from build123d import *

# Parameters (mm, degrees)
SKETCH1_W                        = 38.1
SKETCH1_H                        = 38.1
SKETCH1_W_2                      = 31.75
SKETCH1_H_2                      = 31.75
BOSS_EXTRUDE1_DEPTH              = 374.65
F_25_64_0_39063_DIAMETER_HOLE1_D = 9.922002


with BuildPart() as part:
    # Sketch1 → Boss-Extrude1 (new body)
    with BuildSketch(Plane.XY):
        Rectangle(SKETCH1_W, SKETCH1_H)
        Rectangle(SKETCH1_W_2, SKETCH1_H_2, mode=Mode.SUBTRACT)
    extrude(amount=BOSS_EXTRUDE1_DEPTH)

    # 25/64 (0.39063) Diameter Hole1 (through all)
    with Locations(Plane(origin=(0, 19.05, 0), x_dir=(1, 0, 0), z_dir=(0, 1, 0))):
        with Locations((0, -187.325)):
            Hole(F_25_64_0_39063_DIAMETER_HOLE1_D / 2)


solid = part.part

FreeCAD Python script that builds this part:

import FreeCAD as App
import Part
import Sketcher

V = App.Vector
Q = App.Units.Quantity


def add_polygon(sketch, points):
    """Adds a closed chain of lines whose ends are joined by coincident constraints."""
    first, n = sketch.GeometryCount, len(points)
    for a, b in zip(points, points[1:] + points[:1]):
        sketch.addGeometry(Part.LineSegment(App.Vector(*a, 0), App.Vector(*b, 0)), False)
    for i in range(n):
        sketch.addConstraint(Sketcher.Constraint("Coincident", first + i, 2, first + (i + 1) % n, 1))

doc = App.newDocument("Part")
body = doc.addObject("PartDesign::Body", "Body")

# Sketch on XY plane
sketch1 = body.newObject("Sketcher::SketchObject", "Sketch")
sketch1.AttachmentSupport = (doc.getObject("XY_Plane"), [""])
sketch1.MapMode = "FlatFace"
add_polygon(sketch1, [(-19, 19), (-19, -19), (19, -19), (19, 19)])  # lines 0-3
add_polygon(sketch1, [(16, -16), (-16, -16), (-16, 16), (16, 16)])  # lines 4-7
sketch1.addConstraint(Sketcher.Constraint("Vertical", 0))
sketch1.addConstraint(Sketcher.Constraint("Horizontal", 1))
sketch1.addConstraint(Sketcher.Constraint("Vertical", 2))
sketch1.addConstraint(Sketcher.Constraint("Horizontal", 3))
sketch1.addConstraint(Sketcher.Constraint("Horizontal", 4))
sketch1.addConstraint(Sketcher.Constraint("Vertical", 5))
sketch1.addConstraint(Sketcher.Constraint("Horizontal", 6))
sketch1.addConstraint(Sketcher.Constraint("Vertical", 7))
sketch1.addConstraint(Sketcher.Constraint("Symmetric", 0, 2, 2, 2, -1, 1))
sketch1.addConstraint(Sketcher.Constraint("Symmetric", 4, 2, 6, 2, -1, 1))
sketch1.addConstraint(Sketcher.Constraint("Equal", 3, 0))
sketch1.addConstraint(Sketcher.Constraint("Equal", 6, 5))
sketch1.addConstraint(Sketcher.Constraint("DistanceX", 1, 1, 1, 2, Q("1.5 in")))
sketch1.addConstraint(Sketcher.Constraint("DistanceX", 4, 2, 4, 1, Q("1.25 in")))
pad1 = body.newObject("PartDesign::Pad", "Pad")
pad1.Profile = sketch1
pad1.Length = Q("14.75 in")

# Sketch on XZ plane
sketch2 = body.newObject("Sketcher::SketchObject", "Sketch001")
sketch2.AttachmentSupport = (doc.getObject("XZ_Plane"), [""])
sketch2.MapMode = "FlatFace"
sketch2.AttachmentOffset = App.Placement(V(0, 0, -0.75 * 25.4), App.Rotation())
sketch2.addGeometry(Part.Circle(V(0, 187.3, 0), V(0, 0, 1), 5), False)
sketch2.addConstraint(Sketcher.Constraint("PointOnObject", 0, 3, -2))
sketch2.addConstraint(Sketcher.Constraint("DistanceY", -1, 1, 0, 3, Q("7.375 in")))
sketch2.addConstraint(Sketcher.Constraint("Diameter", 0, Q("9.922002 mm")))
doc.recompute()
hole = body.newObject("PartDesign::Hole", "Hole")
hole.Profile = sketch2
hole.ThreadType = "None"
hole.Diameter = 9.922002
hole.DepthType = "ThroughAll"
hole.Reversed = True

doc.recompute()
